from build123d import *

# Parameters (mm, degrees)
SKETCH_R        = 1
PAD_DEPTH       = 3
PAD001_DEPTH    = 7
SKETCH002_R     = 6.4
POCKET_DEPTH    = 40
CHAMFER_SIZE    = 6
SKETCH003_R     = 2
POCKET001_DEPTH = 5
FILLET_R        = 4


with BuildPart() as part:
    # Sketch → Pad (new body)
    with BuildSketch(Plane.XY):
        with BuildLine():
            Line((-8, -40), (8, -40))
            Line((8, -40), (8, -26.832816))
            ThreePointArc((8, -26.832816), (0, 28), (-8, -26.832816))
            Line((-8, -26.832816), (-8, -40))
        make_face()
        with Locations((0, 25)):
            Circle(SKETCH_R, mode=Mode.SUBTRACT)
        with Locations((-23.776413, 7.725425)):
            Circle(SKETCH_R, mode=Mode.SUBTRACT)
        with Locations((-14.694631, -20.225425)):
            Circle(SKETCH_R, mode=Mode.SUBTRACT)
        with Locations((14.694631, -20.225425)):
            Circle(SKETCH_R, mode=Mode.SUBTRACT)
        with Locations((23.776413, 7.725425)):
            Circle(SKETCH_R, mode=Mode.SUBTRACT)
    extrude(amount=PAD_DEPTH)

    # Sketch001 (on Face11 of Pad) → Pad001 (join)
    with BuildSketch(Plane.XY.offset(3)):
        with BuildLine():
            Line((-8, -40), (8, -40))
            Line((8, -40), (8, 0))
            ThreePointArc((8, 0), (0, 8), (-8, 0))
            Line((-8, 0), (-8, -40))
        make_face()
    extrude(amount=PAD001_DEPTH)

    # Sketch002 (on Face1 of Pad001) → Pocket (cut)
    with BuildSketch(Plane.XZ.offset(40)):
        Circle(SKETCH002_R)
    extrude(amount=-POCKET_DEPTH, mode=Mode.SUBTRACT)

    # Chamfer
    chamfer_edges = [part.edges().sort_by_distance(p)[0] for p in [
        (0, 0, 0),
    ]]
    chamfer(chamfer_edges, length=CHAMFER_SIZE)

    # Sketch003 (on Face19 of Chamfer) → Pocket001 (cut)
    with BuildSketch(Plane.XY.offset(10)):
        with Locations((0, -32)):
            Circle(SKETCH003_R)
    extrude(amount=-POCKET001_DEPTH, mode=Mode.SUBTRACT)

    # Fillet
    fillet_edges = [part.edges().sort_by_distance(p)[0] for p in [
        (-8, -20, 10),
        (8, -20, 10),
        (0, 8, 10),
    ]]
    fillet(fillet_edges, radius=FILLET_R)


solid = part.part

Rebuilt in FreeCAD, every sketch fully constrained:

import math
import FreeCAD as App
import Part
import Sketcher
from FreeCAD import Vector
Q = App.Units.Quantity


def edges_at(feature, points):
    """Names of the edges that pass closest to the given points."""
    edges = feature.Shape.Edges
    near = lambda p: min(range(len(edges)), key=lambda i: edges[i].distToShape(Part.Vertex(*p))[0])
    return sorted({f"Edge{near(p) + 1}" for p in points})

doc = App.newDocument("Part")
body = doc.addObject("PartDesign::Body", "Body")

# Sketch on XY plane
sketch1 = body.newObject("Sketcher::SketchObject", "Sketch")
sketch1.AttachmentSupport = (doc.getObject("XY_Plane"), [""])
sketch1.MapMode = "FlatFace"
sketch1.addGeometry([
    Part.LineSegment(Vector(-8, -40, 0), Vector(8, -40, 0)),  # 0
    Part.LineSegment(Vector(8, -40, 0), Vector(8, -26.8, 0)),  # 1
    Part.ArcOfCircle(Part.Circle(Vector(0, 0, 0), Vector(0, 0, 1), 28), math.radians(-73), math.radians(253)),  # 2
    Part.LineSegment(Vector(-8, -26.8, 0), Vector(-8, -40, 0)),  # 3
    Part.Circle(Vector(-14.7, -20.2, 0), Vector(0, 0, 1), 1),  # 4
    Part.Circle(Vector(14.7, -20.2, 0), Vector(0, 0, 1), 1),  # 5
    Part.Circle(Vector(-23.8, 7.7, 0), Vector(0, 0, 1), 1),  # 6
    Part.Circle(Vector(0, 25, 0), Vector(0, 0, 1), 1),  # 7
    Part.Circle(Vector(23.8, 7.7, 0), Vector(0, 0, 1), 1),  # 8
], False)
sketch1.addConstraint([
    Sketcher.Constraint("Coincident", 0, 2, 1, 1),
    Sketcher.Constraint("Coincident", 1, 2, 2, 1),
    Sketcher.Constraint("Coincident", 2, 2, 3, 1),
    Sketcher.Constraint("Coincident", 3, 2, 0, 1),
    Sketcher.Constraint("Horizontal", 0),
    Sketcher.Constraint("Vertical", 1),
    Sketcher.Constraint("Vertical", 3),
    Sketcher.Constraint("Coincident", 2, 3, -1, 1),
    Sketcher.Constraint("Equal", 4, 5),
    Sketcher.Constraint("Equal", 5, 6),
    Sketcher.Constraint("Equal", 6, 7),
    Sketcher.Constraint("Equal", 7, 8),
    Sketcher.Constraint("Symmetric", 4, 3, 5, 3, -2),
    Sketcher.Constraint("Symmetric", 6, 3, 8, 3, -2),
    Sketcher.Constraint("PointOnObject", 7, 3, -2),
    Sketcher.Constraint("Horizontal", 1, 2, 2, 2),
    Sketcher.Constraint("Diameter", 4, Q("2 mm")),
    Sketcher.Constraint("Radius", 2, Q("28 mm")),
    Sketcher.Constraint("DistanceX", 0, 1, 0, 2, Q("16 mm")),
    Sketcher.Constraint("DistanceY", -1, 1, 7, 3, Q("25 mm")),
    Sketcher.Constraint("DistanceY", 0, 2, -1, 1, Q("40 mm")),
    Sketcher.Constraint("DistanceX", 4, 3, -1, 1, Q("14.694631 mm")),
    Sketcher.Constraint("DistanceY", 4, 3, 6, 3, Q("27.95085 mm")),
    Sketcher.Constraint("DistanceY", 1, 2, 5, 3, Q("6.607391 mm")),
    Sketcher.Constraint("DistanceX", 6, 3, -1, 1, Q("23.776413 mm")),
])
pad1 = body.newObject("PartDesign::Pad", "Pad")
pad1.Profile = sketch1
pad1.Length = 3

# Sketch on XY plane
sketch2 = body.newObject("Sketcher::SketchObject", "Sketch001")
sketch2.AttachmentSupport = (doc.getObject("XY_Plane"), [""])
sketch2.MapMode = "FlatFace"
sketch2.AttachmentOffset = App.Placement(Vector(0, 0, 3), App.Rotation())
sketch2.addGeometry([
    Part.LineSegment(Vector(-8, -40, 0), Vector(8, -40, 0)),
    Part.LineSegment(Vector(8, -40, 0), Vector(8, 0, 0)),
    Part.ArcOfCircle(Part.Circle(Vector(0, 0, 0), Vector(0, 0, 1), 8), math.radians(0), math.radians(180)),
    Part.LineSegment(Vector(-8, 0, 0), Vector(-8, -40, 0)),
], False)
sketch2.addConstraint([
    Sketcher.Constraint("Coincident", 0, 2, 1, 1),
    Sketcher.Constraint("Tangent", 1, 2, 2, 1),
    Sketcher.Constraint("Tangent", 2, 2, 3, 1),
    Sketcher.Constraint("Coincident", 3, 2, 0, 1),
    Sketcher.Constraint("Horizontal", 0),
    Sketcher.Constraint("Vertical", 1),
    Sketcher.Constraint("Vertical", 3),
    Sketcher.Constraint("Coincident", 2, 3, -1, 1),
    Sketcher.Constraint("Radius", 2, Q("8 mm")),
    Sketcher.Constraint("DistanceY", 1, 1, 1, 2, Q("40 mm")),
])
pad2 = body.newObject("PartDesign::Pad", "Pad001")
pad2.Profile = sketch2
pad2.Length = 7

# Sketch on XZ plane
sketch3 = body.newObject("Sketcher::SketchObject", "Sketch002")
sketch3.AttachmentSupport = (doc.getObject("XZ_Plane"), [""])
sketch3.MapMode = "FlatFace"
sketch3.AttachmentOffset = App.Placement(Vector(0, 0, 40), App.Rotation())
sketch3.addGeometry(Part.Circle(Vector(0, 0, 0), Vector(0, 0, 1), 6), False)
sketch3.addConstraint([
    Sketcher.Constraint("Coincident", 0, 3, -1, 1),
    Sketcher.Constraint("Diameter", 0, Q("12.8 mm")),
])
pocket1 = body.newObject("PartDesign::Pocket", "Pocket")
pocket1.Profile = sketch3
pocket1.Length = 40
doc.recompute()

chamfer = body.newObject("PartDesign::Chamfer", "Chamfer")
chamfer.Base = (pocket1, edges_at(pocket1, [(0, 0, 0)]))
chamfer.Size = 6

# Sketch on XY plane
sketch4 = body.newObject("Sketcher::SketchObject", "Sketch003")
sketch4.AttachmentSupport = (doc.getObject("XY_Plane"), [""])
sketch4.MapMode = "FlatFace"
sketch4.AttachmentOffset = App.Placement(Vector(0, 0, 10), App.Rotation())
sketch4.addGeometry(Part.Circle(Vector(0, -32, 0), Vector(0, 0, 1), 2), False)
sketch4.addConstraint([
    Sketcher.Constraint("PointOnObject", 0, 3, -2),
    Sketcher.Constraint("Diameter", 0, Q("4 mm")),
    Sketcher.Constraint("DistanceY", 0, 3, -1, 1, Q("32 mm")),
])
pocket2 = body.newObject("PartDesign::Pocket", "Pocket001")
pocket2.Profile = sketch4
pocket2.Length = 5
doc.recompute()

fillet = body.newObject("PartDesign::Fillet", "Fillet")
fillet.Base = (pocket2, edges_at(pocket2, [(-8, -20, 10), (8, -20, 10), (0, 8, 10)]))
fillet.Radius = 4

doc.recompute()
